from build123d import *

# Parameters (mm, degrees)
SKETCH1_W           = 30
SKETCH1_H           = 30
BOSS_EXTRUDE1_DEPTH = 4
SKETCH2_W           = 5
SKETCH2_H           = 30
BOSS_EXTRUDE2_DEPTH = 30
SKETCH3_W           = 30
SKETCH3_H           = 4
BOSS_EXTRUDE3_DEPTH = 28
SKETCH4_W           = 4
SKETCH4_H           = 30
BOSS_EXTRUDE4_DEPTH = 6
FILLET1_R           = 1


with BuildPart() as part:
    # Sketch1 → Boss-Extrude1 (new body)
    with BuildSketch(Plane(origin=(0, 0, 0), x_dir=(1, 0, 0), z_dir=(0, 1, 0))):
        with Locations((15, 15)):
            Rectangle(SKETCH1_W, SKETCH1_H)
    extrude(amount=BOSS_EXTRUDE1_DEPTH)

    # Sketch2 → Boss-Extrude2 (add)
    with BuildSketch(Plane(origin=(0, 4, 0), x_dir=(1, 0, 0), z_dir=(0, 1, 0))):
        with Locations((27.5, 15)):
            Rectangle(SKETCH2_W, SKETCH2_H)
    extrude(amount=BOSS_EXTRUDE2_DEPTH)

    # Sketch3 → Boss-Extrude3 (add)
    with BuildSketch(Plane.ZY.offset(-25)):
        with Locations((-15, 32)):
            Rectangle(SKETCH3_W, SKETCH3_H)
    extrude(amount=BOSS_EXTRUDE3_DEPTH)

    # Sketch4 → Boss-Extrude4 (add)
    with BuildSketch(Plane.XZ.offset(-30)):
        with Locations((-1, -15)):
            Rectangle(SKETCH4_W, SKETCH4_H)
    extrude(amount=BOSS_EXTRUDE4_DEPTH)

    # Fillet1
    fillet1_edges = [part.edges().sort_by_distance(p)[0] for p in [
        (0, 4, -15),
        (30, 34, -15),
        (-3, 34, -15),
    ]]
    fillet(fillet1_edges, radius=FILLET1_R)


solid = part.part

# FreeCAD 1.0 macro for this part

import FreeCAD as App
import Part
import Sketcher


def edges_at(feature, points):
    """Names of the edges that pass closest to the given points."""
    edges = feature.Shape.Edges
    near = lambda p: min(range(len(edges)), key=lambda i: edges[i].distToShape(Part.Vertex(*p))[0])
    return sorted({f"Edge{near(p) + 1}" for p in points})


def add_polygon(sketch, points):
    """Adds a closed chain of lines whose ends are joined by coincident constraints."""
    first, n = sketch.GeometryCount, len(points)
    for a, b in zip(points, points[1:] + points[:1]):
        sketch.addGeometry(Part.LineSegment(App.Vector(*a, 0), App.Vector(*b, 0)), False)
    for i in range(n):
        sketch.addConstraint(Sketcher.Constraint("Coincident", first + i, 2, first + (i + 1) % n, 1))

doc = App.newDocument("Part")
body = doc.addObject("PartDesign::Body", "Body")

# Sketch on XZ plane
sketch1 = body.newObject("Sketcher::SketchObject", "Sketch")
sketch1.AttachmentSupport = (doc.getObject("XZ_Plane"), [""])
sketch1.MapMode = "FlatFace"
add_polygon(sketch1, [(0, -30), (0, 0), (30, 0), (30, -30)])  # lines 0-3
sketch1.addConstraint(Sketcher.Constraint("Vertical", 0))
sketch1.addConstraint(Sketcher.Constraint("Horizontal", 1))
sketch1.addConstraint(Sketcher.Constraint("Vertical", 2))
sketch1.addConstraint(Sketcher.Constraint("Horizontal", 3))
sketch1.addConstraint(Sketcher.Constraint("Coincident", 0, 2, -1, 1))
sketch1.addConstraint(Sketcher.Constraint("Equal", 3, 0))
sketch1.addConstraint(Sketcher.Constraint("DistanceX", 1, 1, 1, 2, 30.0))
pad1 = body.newObject("PartDesign::Pad", "Pad")
pad1.Profile = sketch1
pad1.Length = 4
pad1.Reversed = True

# Sketch on XZ plane
sketch2 = body.newObject("Sketcher::SketchObject", "Sketch001")
sketch2.AttachmentSupport = (doc.getObject("XZ_Plane"), [""])
sketch2.MapMode = "FlatFace"
sketch2.AttachmentOffset = App.Placement(App.Vector(0, 0, -4), App.Rotation())
add_polygon(sketch2, [(25, -30), (25, 0), (30, 0), (30, -30)])  # lines 0-3
sketch2.addConstraint(Sketcher.Constraint("Vertical", 0))
sketch2.addConstraint(Sketcher.Constraint("Horizontal", 1))
sketch2.addConstraint(Sketcher.Constraint("Vertical", 2))
sketch2.addConstraint(Sketcher.Constraint("Horizontal", 3))
sketch2.addConstraint(Sketcher.Constraint("PointOnObject", 0, 2, -1))
sketch2.addConstraint(Sketcher.Constraint("DistanceX", 1, 1, 1, 2, 5.0))
sketch2.addConstraint(Sketcher.Constraint("DistanceY", 0, 1, 0, 2, 30.0))
sketch2.addConstraint(Sketcher.Constraint("DistanceX", -1, 1, 0, 2, 25.0))
pad2 = body.newObject("PartDesign::Pad", "Pad001")
pad2.Profile = sketch2
pad2.Length = 30
pad2.Reversed = True

# Sketch on YZ plane
sketch3 = body.newObject("Sketcher::SketchObject", "Sketch002")
sketch3.AttachmentSupport = (doc.getObject("YZ_Plane"), [""])
sketch3.MapMode = "FlatFace"
sketch3.AttachmentOffset = App.Placement(App.Vector(0, 0, 25), App.Rotation())
add_polygon(sketch3, [(34, -30), (30, -30), (30, 0), (34, 0)])  # lines 0-3
sketch3.addConstraint(Sketcher.Constraint("Horizontal", 0))
sketch3.addConstraint(Sketcher.Constraint("Vertical", 1))
sketch3.addConstraint(Sketcher.Constraint("Horizontal", 2))
sketch3.addConstraint(Sketcher.Constraint("Vertical", 3))
sketch3.addConstraint(Sketcher.Constraint("PointOnObject", 1, 2, -1))
sketch3.addConstraint(Sketcher.Constraint("DistanceX", 0, 2, 0, 1, 4.0))
sketch3.addConstraint(Sketcher.Constraint("DistanceY", 1, 1, 1, 2, 30.0))
sketch3.addConstraint(Sketcher.Constraint("DistanceX", -1, 1, 0, 2, 30.0))
pad3 = body.newObject("PartDesign::Pad", "Pad002")
pad3.Profile = sketch3
pad3.Length = 28
pad3.Reversed = True

# Sketch on XZ plane
sketch4 = body.newObject("Sketcher::SketchObject", "Sketch003")
sketch4.AttachmentSupport = (doc.getObject("XZ_Plane"), [""])
sketch4.MapMode = "FlatFace"
sketch4.AttachmentOffset = App.Placement(App.Vector(0, 0, -30), App.Rotation())
add_polygon(sketch4, [(-3, 0), (-3, -30), (1, -30), (1, 0)])  # lines 0-3
sketch4.addConstraint(Sketcher.Constraint("Vertical", 0))
sketch4.addConstraint(Sketcher.Constraint("Horizontal", 1))
sketch4.addConstraint(Sketcher.Constraint("Vertical", 2))
sketch4.addConstraint(Sketcher.Constraint("Horizontal", 3))
sketch4.addConstraint(Sketcher.Constraint("PointOnObject", 2, 2, -1))
sketch4.addConstraint(Sketcher.Constraint("DistanceX", 1, 1, 1, 2, 4.0))
sketch4.addConstraint(Sketcher.Constraint("DistanceY", 0, 2, 0, 1, 30.0))
sketch4.addConstraint(Sketcher.Constraint("DistanceX", 0, 2, -1, 1, 3.0))
pad4 = body.newObject("PartDesign::Pad", "Pad003")
pad4.Profile = sketch4
pad4.Length = 6
doc.recompute()

fillet = body.newObject("PartDesign::Fillet", "Fillet")
fillet.Base = (pad4, edges_at(pad4, [(0, 4, -15), (30, 34, -15), (-3, 34, -15)]))
fillet.Radius = 1

doc.recompute()
